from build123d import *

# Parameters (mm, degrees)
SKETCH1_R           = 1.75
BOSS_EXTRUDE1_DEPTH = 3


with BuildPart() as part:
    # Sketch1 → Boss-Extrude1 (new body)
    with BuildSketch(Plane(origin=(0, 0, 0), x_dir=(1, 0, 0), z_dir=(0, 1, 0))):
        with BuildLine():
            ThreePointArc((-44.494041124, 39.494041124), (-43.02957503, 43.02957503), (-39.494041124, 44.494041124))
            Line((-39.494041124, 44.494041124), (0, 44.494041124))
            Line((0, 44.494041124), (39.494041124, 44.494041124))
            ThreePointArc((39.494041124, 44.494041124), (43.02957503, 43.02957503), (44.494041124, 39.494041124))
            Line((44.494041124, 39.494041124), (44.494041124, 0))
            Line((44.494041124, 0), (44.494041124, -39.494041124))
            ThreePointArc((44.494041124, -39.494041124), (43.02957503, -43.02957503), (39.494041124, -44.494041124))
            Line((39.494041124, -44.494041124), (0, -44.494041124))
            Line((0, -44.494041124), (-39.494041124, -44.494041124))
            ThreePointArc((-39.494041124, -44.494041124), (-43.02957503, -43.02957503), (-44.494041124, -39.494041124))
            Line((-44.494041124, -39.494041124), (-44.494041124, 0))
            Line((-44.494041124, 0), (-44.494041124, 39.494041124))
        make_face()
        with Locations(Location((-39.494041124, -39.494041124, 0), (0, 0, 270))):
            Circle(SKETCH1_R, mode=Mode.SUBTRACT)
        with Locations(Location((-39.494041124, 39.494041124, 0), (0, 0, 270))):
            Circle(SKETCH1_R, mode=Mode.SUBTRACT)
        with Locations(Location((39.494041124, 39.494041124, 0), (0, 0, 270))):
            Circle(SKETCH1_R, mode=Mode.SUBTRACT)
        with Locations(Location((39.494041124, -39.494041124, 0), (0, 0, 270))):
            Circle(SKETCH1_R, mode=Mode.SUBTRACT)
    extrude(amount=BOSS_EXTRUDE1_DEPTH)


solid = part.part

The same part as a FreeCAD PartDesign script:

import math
import FreeCAD as App
import Part
import Sketcher

doc = App.newDocument("Part")
body = doc.addObject("PartDesign::Body", "Body")

# Sketch on XZ plane
sketch1 = body.newObject("Sketcher::SketchObject", "Sketch")
sketch1.AttachmentSupport = (doc.getObject("XZ_Plane"), [""])
sketch1.MapMode = "FlatFace"
sketch1.addGeometry([
    Part.ArcOfCircle(Part.Circle(App.Vector(-39.5, -39.5, 0), App.Vector(0, 0, 1), 5), math.radians(180), math.radians(270)),  # 0
    Part.LineSegment(App.Vector(-44.5, -39.5, 0), App.Vector(-44.5, 39.5, 0)),  # 1
    Part.ArcOfCircle(Part.Circle(App.Vector(-39.5, 39.5, 0), App.Vector(0, 0, 1), 5), math.radians(90), math.radians(180)),  # 2
    Part.LineSegment(App.Vector(-39.5, 44.5, 0), App.Vector(39.5, 44.5, 0)),  # 3
    Part.ArcOfCircle(Part.Circle(App.Vector(39.5, 39.5, 0), App.Vector(0, 0, 1), 5), math.radians(0), math.radians(90)),  # 4
    Part.LineSegment(App.Vector(44.5, 39.5, 0), App.Vector(44.5, -39.5, 0)),  # 5
    Part.ArcOfCircle(Part.Circle(App.Vector(39.5, -39.5, 0), App.Vector(0, 0, 1), 5), math.radians(-90), math.radians(0)),  # 6
    Part.LineSegment(App.Vector(39.5, -44.5, 0), App.Vector(-39.5, -44.5, 0)),  # 7
    Part.Circle(App.Vector(39.5, 39.5, 0), App.Vector(0, 0, 1), 1.8),  # 8
    Part.Circle(App.Vector(-39.5, 39.5, 0), App.Vector(0, 0, 1), 1.8),  # 9
    Part.Circle(App.Vector(39.5, -39.5, 0), App.Vector(0, 0, 1), 1.8),  # 10
    Part.Circle(App.Vector(-39.5, -39.5, 0), App.Vector(0, 0, 1), 1.8),  # 11
], False)
sketch1.addConstraint([
    Sketcher.Constraint("Tangent", 0, 1, 1, 1),
    Sketcher.Constraint("Tangent", 1, 2, 2, 2),
    Sketcher.Constraint("Tangent", 2, 1, 3, 1),
    Sketcher.Constraint("Tangent", 3, 2, 4, 2),
    Sketcher.Constraint("Tangent", 4, 1, 5, 1),
    Sketcher.Constraint("Tangent", 5, 2, 6, 2),
    Sketcher.Constraint("Tangent", 6, 1, 7, 1),
    Sketcher.Constraint("Tangent", 7, 2, 0, 2),
    Sketcher.Constraint("Vertical", 1),
    Sketcher.Constraint("Horizontal", 3),
    Sketcher.Constraint("Vertical", 5),
    Sketcher.Constraint("Horizontal", 7),
    Sketcher.Constraint("Coincident", 8, 3, 4, 3),
    Sketcher.Constraint("Coincident", 9, 3, 2, 3),
    Sketcher.Constraint("Coincident", 10, 3, 6, 3),
    Sketcher.Constraint("Coincident", 11, 3, 0, 3),
    Sketcher.Constraint("Equal", 0, 2),
    Sketcher.Constraint("Equal", 2, 4),
    Sketcher.Constraint("Equal", 4, 6),
    Sketcher.Constraint("Equal", 8, 9),
    Sketcher.Constraint("Equal", 9, 10),
    Sketcher.Constraint("Equal", 10, 11),
    Sketcher.Constraint("Symmetric", 0, 3, 4, 3, -1, 1),
    Sketcher.Constraint("Equal", 7, 1),
    Sketcher.Constraint("Radius", 0, 5.0),
    Sketcher.Constraint("Diameter", 8, 3.5),
    Sketcher.Constraint("DistanceX", 3, 1, 3, 2, 78.988082),
])
pad1 = body.newObject("PartDesign::Pad", "Pad")
pad1.Profile = sketch1
pad1.Length = 3
pad1.Reversed = True

doc.recompute()
